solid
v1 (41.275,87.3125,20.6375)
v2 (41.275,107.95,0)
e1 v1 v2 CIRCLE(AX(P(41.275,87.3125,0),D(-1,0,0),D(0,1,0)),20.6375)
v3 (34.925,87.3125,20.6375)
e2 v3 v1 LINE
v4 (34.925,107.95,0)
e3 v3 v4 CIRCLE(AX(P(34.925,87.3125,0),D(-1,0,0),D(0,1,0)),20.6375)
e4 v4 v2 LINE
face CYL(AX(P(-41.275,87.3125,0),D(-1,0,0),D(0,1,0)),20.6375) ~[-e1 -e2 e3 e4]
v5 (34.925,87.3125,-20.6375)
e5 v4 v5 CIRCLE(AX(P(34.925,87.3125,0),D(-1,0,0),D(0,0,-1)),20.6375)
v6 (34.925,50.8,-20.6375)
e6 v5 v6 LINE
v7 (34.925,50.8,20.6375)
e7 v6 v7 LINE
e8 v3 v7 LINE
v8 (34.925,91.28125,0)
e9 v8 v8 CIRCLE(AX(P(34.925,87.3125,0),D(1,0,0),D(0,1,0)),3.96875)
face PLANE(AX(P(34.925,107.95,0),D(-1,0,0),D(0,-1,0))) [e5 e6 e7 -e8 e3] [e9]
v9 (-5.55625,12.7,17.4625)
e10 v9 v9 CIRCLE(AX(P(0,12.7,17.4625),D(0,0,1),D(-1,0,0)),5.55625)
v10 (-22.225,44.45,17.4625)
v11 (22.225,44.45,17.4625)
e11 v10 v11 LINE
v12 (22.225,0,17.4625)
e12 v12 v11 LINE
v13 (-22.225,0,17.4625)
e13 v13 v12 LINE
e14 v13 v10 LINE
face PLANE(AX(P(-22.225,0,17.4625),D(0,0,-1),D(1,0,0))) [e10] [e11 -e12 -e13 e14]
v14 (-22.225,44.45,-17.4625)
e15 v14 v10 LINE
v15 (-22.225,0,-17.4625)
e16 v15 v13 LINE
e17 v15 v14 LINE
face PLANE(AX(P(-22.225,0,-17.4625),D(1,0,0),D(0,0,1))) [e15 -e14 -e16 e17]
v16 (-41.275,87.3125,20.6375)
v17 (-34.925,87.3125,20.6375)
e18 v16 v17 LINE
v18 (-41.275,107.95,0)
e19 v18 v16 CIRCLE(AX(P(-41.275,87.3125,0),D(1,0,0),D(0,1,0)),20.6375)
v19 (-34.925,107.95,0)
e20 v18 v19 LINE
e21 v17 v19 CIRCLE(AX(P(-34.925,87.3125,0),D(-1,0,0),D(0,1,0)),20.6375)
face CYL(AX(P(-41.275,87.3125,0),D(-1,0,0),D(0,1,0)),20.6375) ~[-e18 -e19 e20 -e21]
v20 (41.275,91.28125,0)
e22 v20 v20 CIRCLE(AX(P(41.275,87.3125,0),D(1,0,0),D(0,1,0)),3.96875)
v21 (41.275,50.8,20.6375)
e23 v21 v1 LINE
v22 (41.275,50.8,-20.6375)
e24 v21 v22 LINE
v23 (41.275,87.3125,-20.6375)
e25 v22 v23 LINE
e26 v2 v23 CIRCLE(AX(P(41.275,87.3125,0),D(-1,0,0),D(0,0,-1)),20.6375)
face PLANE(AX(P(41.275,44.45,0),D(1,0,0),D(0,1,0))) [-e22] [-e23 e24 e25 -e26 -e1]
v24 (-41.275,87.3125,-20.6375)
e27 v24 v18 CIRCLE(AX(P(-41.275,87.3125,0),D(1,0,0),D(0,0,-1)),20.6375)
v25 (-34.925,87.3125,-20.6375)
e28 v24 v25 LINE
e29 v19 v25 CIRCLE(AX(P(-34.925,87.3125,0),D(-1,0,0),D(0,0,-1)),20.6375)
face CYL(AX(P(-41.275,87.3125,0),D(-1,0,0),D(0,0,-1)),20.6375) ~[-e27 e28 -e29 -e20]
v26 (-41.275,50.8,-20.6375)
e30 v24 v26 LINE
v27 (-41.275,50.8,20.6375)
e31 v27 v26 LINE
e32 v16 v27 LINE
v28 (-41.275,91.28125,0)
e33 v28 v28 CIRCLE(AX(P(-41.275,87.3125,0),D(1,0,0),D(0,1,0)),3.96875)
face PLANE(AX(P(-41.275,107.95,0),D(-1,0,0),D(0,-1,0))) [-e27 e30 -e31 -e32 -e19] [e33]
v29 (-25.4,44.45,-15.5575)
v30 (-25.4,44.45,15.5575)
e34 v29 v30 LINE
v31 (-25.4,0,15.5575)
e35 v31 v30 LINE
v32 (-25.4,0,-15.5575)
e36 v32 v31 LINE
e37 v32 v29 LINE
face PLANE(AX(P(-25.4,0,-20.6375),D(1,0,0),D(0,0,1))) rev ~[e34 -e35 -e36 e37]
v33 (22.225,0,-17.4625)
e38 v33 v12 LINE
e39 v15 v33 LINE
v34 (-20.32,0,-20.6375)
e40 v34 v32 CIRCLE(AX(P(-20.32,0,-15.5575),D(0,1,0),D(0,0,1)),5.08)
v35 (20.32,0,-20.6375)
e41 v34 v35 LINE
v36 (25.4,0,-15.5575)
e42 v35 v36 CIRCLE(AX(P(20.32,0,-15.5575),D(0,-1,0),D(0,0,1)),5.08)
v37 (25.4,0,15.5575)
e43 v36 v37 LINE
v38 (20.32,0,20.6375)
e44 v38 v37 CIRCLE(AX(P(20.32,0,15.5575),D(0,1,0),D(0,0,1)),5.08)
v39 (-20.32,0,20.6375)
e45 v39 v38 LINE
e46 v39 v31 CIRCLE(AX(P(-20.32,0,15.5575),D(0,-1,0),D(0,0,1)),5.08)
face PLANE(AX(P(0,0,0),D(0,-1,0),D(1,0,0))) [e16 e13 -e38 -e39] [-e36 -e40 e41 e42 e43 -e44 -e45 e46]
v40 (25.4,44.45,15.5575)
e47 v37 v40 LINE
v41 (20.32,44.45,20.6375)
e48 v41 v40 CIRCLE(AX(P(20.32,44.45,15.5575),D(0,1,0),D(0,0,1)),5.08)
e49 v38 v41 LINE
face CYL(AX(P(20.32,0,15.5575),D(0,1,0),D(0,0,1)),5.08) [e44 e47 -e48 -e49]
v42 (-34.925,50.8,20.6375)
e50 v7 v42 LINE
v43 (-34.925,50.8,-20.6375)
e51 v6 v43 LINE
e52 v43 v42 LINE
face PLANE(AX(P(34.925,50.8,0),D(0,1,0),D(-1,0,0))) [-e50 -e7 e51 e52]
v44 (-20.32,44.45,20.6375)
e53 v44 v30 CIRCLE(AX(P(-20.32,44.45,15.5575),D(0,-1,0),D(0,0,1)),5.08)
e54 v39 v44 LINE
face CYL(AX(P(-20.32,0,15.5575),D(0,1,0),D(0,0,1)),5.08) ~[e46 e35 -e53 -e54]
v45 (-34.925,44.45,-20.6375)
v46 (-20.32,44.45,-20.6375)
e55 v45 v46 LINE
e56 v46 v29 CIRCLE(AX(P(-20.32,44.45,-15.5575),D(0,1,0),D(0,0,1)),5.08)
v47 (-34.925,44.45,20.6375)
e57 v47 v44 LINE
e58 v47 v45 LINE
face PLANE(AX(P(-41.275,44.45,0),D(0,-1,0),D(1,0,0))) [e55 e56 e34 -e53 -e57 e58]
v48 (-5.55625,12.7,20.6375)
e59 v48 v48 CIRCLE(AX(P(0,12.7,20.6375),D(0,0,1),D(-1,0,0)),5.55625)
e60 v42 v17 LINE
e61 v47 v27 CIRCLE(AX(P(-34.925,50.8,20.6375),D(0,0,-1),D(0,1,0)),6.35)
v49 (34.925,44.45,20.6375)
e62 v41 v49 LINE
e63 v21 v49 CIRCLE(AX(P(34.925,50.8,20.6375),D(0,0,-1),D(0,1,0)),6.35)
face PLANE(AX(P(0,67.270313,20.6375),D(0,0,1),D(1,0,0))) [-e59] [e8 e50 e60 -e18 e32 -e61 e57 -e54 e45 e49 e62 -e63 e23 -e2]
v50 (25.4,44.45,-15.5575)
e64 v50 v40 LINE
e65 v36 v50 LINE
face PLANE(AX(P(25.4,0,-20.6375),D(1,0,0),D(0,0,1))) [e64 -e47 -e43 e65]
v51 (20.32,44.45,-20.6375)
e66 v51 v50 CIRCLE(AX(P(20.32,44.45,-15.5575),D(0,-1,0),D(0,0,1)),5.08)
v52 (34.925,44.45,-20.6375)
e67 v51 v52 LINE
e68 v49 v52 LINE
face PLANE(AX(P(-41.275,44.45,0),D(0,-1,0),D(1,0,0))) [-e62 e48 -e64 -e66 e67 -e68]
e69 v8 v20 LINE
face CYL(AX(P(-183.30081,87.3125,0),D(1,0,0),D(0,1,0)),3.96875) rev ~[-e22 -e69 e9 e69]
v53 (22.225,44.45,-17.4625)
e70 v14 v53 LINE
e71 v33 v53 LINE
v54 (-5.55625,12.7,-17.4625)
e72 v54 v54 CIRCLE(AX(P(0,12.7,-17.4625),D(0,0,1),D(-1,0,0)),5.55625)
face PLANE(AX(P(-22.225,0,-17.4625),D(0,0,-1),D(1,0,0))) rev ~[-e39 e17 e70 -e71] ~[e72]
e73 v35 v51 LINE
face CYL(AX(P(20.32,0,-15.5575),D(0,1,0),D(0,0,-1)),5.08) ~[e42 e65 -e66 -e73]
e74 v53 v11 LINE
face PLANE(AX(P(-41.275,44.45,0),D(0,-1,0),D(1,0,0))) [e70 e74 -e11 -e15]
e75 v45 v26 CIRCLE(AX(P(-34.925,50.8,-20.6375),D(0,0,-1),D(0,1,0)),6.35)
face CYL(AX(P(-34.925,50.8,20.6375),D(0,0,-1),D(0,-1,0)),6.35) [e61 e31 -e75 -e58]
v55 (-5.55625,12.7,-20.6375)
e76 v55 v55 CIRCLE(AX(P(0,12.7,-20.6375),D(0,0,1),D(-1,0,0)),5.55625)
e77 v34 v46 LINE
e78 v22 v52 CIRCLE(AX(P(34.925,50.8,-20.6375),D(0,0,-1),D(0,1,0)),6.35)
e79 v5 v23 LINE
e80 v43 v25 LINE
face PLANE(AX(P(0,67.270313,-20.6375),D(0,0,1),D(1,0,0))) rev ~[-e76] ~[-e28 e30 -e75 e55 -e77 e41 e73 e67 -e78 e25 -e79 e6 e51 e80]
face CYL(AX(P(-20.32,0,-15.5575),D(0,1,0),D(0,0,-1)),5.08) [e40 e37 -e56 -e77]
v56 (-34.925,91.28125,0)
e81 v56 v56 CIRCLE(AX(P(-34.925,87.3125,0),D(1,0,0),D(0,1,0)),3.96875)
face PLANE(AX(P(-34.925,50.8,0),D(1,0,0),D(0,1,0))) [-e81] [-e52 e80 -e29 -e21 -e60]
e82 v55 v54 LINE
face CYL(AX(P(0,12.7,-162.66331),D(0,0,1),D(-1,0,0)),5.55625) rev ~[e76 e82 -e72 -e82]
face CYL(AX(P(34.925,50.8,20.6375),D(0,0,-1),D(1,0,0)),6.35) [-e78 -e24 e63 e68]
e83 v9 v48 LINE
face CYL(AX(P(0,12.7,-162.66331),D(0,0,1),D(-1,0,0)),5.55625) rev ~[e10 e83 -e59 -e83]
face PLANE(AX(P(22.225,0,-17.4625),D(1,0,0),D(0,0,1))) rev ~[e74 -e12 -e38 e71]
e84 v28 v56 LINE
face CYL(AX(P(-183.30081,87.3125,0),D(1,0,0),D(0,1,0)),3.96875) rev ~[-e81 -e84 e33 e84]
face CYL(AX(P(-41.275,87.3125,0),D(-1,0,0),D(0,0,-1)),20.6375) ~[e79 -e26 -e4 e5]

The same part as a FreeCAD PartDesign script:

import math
import FreeCAD as App
import Part
import Sketcher

V = App.Vector
Q = App.Units.Quantity


def edges_at(feature, points):
    """Names of the edges that pass closest to the given points."""
    edges = feature.Shape.Edges
    near = lambda p: min(range(len(edges)), key=lambda i: edges[i].distToShape(Part.Vertex(*p))[0])
    return sorted({f"Edge{near(p) + 1}" for p in points})

doc = App.newDocument("Part")
body = doc.addObject("PartDesign::Body", "Body")

# Sketch on XZ plane
sketch1 = body.newObject("Sketcher::SketchObject", "Sketch")
sketch1.AttachmentSupport = (doc.getObject("XZ_Plane"), [""])
sketch1.MapMode = "FlatFace"
sketch1.addGeometry([
    Part.LineSegment(V(-25, 21, 0), V(-25, -21, 0)),  # 0
    Part.LineSegment(V(-25, -21, 0), V(25, -21, 0)),  # 1
    Part.LineSegment(V(25, -21, 0), V(25, 21, 0)),  # 2
    Part.LineSegment(V(25, 21, 0), V(-25, 21, 0)),  # 3
    Part.LineSegment(V(22, -17, 0), V(-22, -17, 0)),  # 4
    Part.LineSegment(V(-22, -17, 0), V(-22, 17, 0)),  # 5
    Part.LineSegment(V(-22, 17, 0), V(22, 17, 0)),  # 6
    Part.LineSegment(V(22, 17, 0), V(22, -17, 0)),  # 7
], False)
sketch1.addConstraint([
    Sketcher.Constraint("Coincident", 0, 2, 1, 1),
    Sketcher.Constraint("Coincident", 1, 2, 2, 1),
    Sketcher.Constraint("Coincident", 2, 2, 3, 1),
    Sketcher.Constraint("Coincident", 3, 2, 0, 1),
    Sketcher.Constraint("Coincident", 4, 2, 5, 1),
    Sketcher.Constraint("Coincident", 5, 2, 6, 1),
    Sketcher.Constraint("Coincident", 6, 2, 7, 1),
    Sketcher.Constraint("Coincident", 7, 2, 4, 1),
    Sketcher.Constraint("Vertical", 0),
    Sketcher.Constraint("Horizontal", 1),
    Sketcher.Constraint("Vertical", 2),
    Sketcher.Constraint("Horizontal", 3),
    Sketcher.Constraint("Horizontal", 4),
    Sketcher.Constraint("Vertical", 5),
    Sketcher.Constraint("Horizontal", 6),
    Sketcher.Constraint("Vertical", 7),
    Sketcher.Constraint("Symmetric", 0, 2, 2, 2, -1, 1),
    Sketcher.Constraint("Symmetric", 4, 2, 6, 2, -1, 1),
    Sketcher.Constraint("DistanceX", 1, 1, 1, 2, Q("2 in")),
    Sketcher.Constraint("DistanceX", 4, 2, 4, 1, Q("1.75 in")),
    Sketcher.Constraint("DistanceY", 4, 2, 3, 2, Q("1.5 in")),
    Sketcher.Constraint("DistanceY", 0, 2, 0, 1, Q("1.625 in")),
])
pad1 = body.newObject("PartDesign::Pad", "Pad")
pad1.Profile = sketch1
pad1.Length = Q("1.75 in")
pad1.Reversed = True

# Sketch on XY plane
sketch2 = body.newObject("Sketcher::SketchObject", "Sketch001")
sketch2.AttachmentSupport = (doc.getObject("XY_Plane"), [""])
sketch2.MapMode = "FlatFace"
sketch2.addGeometry([
    Part.LineSegment(V(41, 44, 0), V(41, 108, 0)),  # 0
    Part.LineSegment(V(41, 108, 0), V(35, 108, 0)),  # 1
    Part.LineSegment(V(35, 108, 0), V(35, 51, 0)),  # 2
    Part.LineSegment(V(35, 51, 0), V(-35, 51, 0)),  # 3
    Part.LineSegment(V(-35, 51, 0), V(-35, 108, 0)),  # 4
    Part.LineSegment(V(-35, 108, 0), V(-41, 108, 0)),  # 5
    Part.LineSegment(V(-41, 108, 0), V(-41, 44, 0)),  # 6
    Part.LineSegment(V(-41, 44, 0), V(41, 44, 0)),  # 7
], False)
sketch2.addConstraint([
    Sketcher.Constraint("Coincident", 0, 2, 1, 1),
    Sketcher.Constraint("Coincident", 1, 2, 2, 1),
    Sketcher.Constraint("Coincident", 2, 2, 3, 1),
    Sketcher.Constraint("Coincident", 3, 2, 4, 1),
    Sketcher.Constraint("Coincident", 4, 2, 5, 1),
    Sketcher.Constraint("Coincident", 5, 2, 6, 1),
    Sketcher.Constraint("Coincident", 6, 2, 7, 1),
    Sketcher.Constraint("Coincident", 7, 2, 0, 1),
    Sketcher.Constraint("Vertical", 0),
    Sketcher.Constraint("Horizontal", 1),
    Sketcher.Constraint("Vertical", 2),
    Sketcher.Constraint("Horizontal", 3),
    Sketcher.Constraint("Vertical", 4),
    Sketcher.Constraint("Horizontal", 5),
    Sketcher.Constraint("Vertical", 6),
    Sketcher.Constraint("Horizontal", 7),
    Sketcher.Constraint("Symmetric", 1, 2, 4, 2, -2),
    Sketcher.Constraint("Equal", 1, 5),
    Sketcher.Constraint("DistanceY", 0, 1, 0, 2, Q("2.5 in")),
    Sketcher.Constraint("DistanceY", -1, 1, 2, 2, Q("2 in")),
    Sketcher.Constraint("DistanceX", 3, 2, 0, 2, Q("3 in")),
    Sketcher.Constraint("DistanceX", 1, 2, 1, 1, Q("0.25 in")),
    Sketcher.Constraint("DistanceY", 2, 2, 2, 1, Q("2.25 in")),
])
pad2 = body.newObject("PartDesign::Pad", "Pad001")
pad2.Profile = sketch2
pad2.Length = Q("1.625 in")
pad2.Midplane = True

# Sketch on YZ plane
sketch3 = body.newObject("Sketcher::SketchObject", "Sketch002")
sketch3.AttachmentSupport = (doc.getObject("YZ_Plane"), [""])
sketch3.MapMode = "FlatFace"
sketch3.AttachmentOffset = App.Placement(V(0, 0, -1.625 * 25.4), App.Rotation())
sketch3.addGeometry([
    Part.LineSegment(V(108, -21, 0), V(87, -21, 0)),  # 0
    Part.ArcOfCircle(Part.Circle(V(87, 0, 0), V(0, 0, 1), 21), math.radians(-90), math.radians(0)),  # 1
    Part.LineSegment(V(108, 0, 0), V(108, -21, 0)),  # 2
    Part.ArcOfCircle(Part.Circle(V(87, 0, 0), V(0, 0, 1), 21), math.radians(0), math.radians(90)),  # 3
    Part.LineSegment(V(87, 21, 0), V(108, 21, 0)),  # 4
    Part.LineSegment(V(108, 21, 0), V(108, 0, 0)),  # 5
], False)
sketch3.addConstraint([
    Sketcher.Constraint("Tangent", 0, 2, 1, 1),
    Sketcher.Constraint("Tangent", 1, 2, 2, 1),
    Sketcher.Constraint("Coincident", 2, 2, 0, 1),
    Sketcher.Constraint("Tangent", 3, 2, 4, 1),
    Sketcher.Constraint("Coincident", 4, 2, 5, 1),
    Sketcher.Constraint("Tangent", 5, 2, 3, 1),
    Sketcher.Constraint("Horizontal", 0),
    Sketcher.Constraint("Vertical", 2),
    Sketcher.Constraint("Horizontal", 4),
    Sketcher.Constraint("Vertical", 5),
    Sketcher.Constraint("Coincident", 3, 3, 1, 3),
    Sketcher.Constraint("Equal", 1, 3),
    Sketcher.Constraint("PointOnObject", 1, 3, -1),
    Sketcher.Constraint("Radius", 1, Q("0.8125 in")),
    Sketcher.Constraint("DistanceX", -1, 1, 1, 2, Q("4.25 in")),
])
pocket1 = body.newObject("PartDesign::Pocket", "Pocket")
pocket1.Profile = sketch3
pocket1.Type = "ThroughAll"
pocket1.Reversed = True

# Sketch on YZ plane
sketch4 = body.newObject("Sketcher::SketchObject", "Sketch003")
sketch4.AttachmentSupport = (doc.getObject("YZ_Plane"), [""])
sketch4.MapMode = "FlatFace"
sketch4.AttachmentOffset = App.Placement(V(0, 0, -1.625 * 25.4), App.Rotation())
sketch4.addGeometry(Part.Circle(V(87.3, 0, 0), V(0, 0, 1), 4), False)
sketch4.addConstraint([
    Sketcher.Constraint("PointOnObject", 0, 3, -1),
    Sketcher.Constraint("Diameter", 0, Q("0.3125 in")),
    Sketcher.Constraint("DistanceX", -1, 1, 0, 3, Q("3.4375 in")),
])
doc.recompute()
hole = body.newObject("PartDesign::Hole", "Hole")
hole.Profile = sketch4
hole.ThreadType = "None"
hole.Diameter = Q("0.3125 in")
hole.DepthType = "ThroughAll"
hole.Reversed = True
doc.recompute()

fillet = body.newObject("PartDesign::Fillet", "Fillet")
fillet.Base = (hole, edges_at(hole, [(-41.275, 44.45, 0), (41.275, 44.45, 0)]))
fillet.Radius = Q("0.25 in")
doc.recompute()

fillet2 = body.newObject("PartDesign::Fillet", "Fillet001")
fillet2.Base = (fillet, edges_at(fillet, [
    (-25.4, 22.225, 20.637),
    (25.4, 22.225, 20.637),
    (25.4, 22.225, -20.637),
    (-25.4, 22.225, -20.637),
]))
fillet2.Radius = Q("0.2 in")

# Sketch on XY plane
sketch5 = body.newObject("Sketcher::SketchObject", "Sketch004")
sketch5.AttachmentSupport = (doc.getObject("XY_Plane"), [""])
sketch5.MapMode = "FlatFace"
sketch5.AttachmentOffset = App.Placement(V(0, 0, -0.8125 * 25.4), App.Rotation())
sketch5.addGeometry(Part.Circle(V(0, 13, 0), V(0, 0, 1), 6), False)
sketch5.addConstraint([
    Sketcher.Constraint("PointOnObject", 0, 3, -2),
    Sketcher.Constraint("Diameter", 0, Q("0.4375 in")),
    Sketcher.Constraint("DistanceY", -1, 1, 0, 3, Q("0.5 in")),
])
doc.recompute()
hole2 = body.newObject("PartDesign::Hole", "Hole001")
hole2.Profile = sketch5
hole2.ThreadType = "None"
hole2.Diameter = Q("0.4375 in")
hole2.DepthType = "ThroughAll"
hole2.Reversed = True

doc.recompute()
